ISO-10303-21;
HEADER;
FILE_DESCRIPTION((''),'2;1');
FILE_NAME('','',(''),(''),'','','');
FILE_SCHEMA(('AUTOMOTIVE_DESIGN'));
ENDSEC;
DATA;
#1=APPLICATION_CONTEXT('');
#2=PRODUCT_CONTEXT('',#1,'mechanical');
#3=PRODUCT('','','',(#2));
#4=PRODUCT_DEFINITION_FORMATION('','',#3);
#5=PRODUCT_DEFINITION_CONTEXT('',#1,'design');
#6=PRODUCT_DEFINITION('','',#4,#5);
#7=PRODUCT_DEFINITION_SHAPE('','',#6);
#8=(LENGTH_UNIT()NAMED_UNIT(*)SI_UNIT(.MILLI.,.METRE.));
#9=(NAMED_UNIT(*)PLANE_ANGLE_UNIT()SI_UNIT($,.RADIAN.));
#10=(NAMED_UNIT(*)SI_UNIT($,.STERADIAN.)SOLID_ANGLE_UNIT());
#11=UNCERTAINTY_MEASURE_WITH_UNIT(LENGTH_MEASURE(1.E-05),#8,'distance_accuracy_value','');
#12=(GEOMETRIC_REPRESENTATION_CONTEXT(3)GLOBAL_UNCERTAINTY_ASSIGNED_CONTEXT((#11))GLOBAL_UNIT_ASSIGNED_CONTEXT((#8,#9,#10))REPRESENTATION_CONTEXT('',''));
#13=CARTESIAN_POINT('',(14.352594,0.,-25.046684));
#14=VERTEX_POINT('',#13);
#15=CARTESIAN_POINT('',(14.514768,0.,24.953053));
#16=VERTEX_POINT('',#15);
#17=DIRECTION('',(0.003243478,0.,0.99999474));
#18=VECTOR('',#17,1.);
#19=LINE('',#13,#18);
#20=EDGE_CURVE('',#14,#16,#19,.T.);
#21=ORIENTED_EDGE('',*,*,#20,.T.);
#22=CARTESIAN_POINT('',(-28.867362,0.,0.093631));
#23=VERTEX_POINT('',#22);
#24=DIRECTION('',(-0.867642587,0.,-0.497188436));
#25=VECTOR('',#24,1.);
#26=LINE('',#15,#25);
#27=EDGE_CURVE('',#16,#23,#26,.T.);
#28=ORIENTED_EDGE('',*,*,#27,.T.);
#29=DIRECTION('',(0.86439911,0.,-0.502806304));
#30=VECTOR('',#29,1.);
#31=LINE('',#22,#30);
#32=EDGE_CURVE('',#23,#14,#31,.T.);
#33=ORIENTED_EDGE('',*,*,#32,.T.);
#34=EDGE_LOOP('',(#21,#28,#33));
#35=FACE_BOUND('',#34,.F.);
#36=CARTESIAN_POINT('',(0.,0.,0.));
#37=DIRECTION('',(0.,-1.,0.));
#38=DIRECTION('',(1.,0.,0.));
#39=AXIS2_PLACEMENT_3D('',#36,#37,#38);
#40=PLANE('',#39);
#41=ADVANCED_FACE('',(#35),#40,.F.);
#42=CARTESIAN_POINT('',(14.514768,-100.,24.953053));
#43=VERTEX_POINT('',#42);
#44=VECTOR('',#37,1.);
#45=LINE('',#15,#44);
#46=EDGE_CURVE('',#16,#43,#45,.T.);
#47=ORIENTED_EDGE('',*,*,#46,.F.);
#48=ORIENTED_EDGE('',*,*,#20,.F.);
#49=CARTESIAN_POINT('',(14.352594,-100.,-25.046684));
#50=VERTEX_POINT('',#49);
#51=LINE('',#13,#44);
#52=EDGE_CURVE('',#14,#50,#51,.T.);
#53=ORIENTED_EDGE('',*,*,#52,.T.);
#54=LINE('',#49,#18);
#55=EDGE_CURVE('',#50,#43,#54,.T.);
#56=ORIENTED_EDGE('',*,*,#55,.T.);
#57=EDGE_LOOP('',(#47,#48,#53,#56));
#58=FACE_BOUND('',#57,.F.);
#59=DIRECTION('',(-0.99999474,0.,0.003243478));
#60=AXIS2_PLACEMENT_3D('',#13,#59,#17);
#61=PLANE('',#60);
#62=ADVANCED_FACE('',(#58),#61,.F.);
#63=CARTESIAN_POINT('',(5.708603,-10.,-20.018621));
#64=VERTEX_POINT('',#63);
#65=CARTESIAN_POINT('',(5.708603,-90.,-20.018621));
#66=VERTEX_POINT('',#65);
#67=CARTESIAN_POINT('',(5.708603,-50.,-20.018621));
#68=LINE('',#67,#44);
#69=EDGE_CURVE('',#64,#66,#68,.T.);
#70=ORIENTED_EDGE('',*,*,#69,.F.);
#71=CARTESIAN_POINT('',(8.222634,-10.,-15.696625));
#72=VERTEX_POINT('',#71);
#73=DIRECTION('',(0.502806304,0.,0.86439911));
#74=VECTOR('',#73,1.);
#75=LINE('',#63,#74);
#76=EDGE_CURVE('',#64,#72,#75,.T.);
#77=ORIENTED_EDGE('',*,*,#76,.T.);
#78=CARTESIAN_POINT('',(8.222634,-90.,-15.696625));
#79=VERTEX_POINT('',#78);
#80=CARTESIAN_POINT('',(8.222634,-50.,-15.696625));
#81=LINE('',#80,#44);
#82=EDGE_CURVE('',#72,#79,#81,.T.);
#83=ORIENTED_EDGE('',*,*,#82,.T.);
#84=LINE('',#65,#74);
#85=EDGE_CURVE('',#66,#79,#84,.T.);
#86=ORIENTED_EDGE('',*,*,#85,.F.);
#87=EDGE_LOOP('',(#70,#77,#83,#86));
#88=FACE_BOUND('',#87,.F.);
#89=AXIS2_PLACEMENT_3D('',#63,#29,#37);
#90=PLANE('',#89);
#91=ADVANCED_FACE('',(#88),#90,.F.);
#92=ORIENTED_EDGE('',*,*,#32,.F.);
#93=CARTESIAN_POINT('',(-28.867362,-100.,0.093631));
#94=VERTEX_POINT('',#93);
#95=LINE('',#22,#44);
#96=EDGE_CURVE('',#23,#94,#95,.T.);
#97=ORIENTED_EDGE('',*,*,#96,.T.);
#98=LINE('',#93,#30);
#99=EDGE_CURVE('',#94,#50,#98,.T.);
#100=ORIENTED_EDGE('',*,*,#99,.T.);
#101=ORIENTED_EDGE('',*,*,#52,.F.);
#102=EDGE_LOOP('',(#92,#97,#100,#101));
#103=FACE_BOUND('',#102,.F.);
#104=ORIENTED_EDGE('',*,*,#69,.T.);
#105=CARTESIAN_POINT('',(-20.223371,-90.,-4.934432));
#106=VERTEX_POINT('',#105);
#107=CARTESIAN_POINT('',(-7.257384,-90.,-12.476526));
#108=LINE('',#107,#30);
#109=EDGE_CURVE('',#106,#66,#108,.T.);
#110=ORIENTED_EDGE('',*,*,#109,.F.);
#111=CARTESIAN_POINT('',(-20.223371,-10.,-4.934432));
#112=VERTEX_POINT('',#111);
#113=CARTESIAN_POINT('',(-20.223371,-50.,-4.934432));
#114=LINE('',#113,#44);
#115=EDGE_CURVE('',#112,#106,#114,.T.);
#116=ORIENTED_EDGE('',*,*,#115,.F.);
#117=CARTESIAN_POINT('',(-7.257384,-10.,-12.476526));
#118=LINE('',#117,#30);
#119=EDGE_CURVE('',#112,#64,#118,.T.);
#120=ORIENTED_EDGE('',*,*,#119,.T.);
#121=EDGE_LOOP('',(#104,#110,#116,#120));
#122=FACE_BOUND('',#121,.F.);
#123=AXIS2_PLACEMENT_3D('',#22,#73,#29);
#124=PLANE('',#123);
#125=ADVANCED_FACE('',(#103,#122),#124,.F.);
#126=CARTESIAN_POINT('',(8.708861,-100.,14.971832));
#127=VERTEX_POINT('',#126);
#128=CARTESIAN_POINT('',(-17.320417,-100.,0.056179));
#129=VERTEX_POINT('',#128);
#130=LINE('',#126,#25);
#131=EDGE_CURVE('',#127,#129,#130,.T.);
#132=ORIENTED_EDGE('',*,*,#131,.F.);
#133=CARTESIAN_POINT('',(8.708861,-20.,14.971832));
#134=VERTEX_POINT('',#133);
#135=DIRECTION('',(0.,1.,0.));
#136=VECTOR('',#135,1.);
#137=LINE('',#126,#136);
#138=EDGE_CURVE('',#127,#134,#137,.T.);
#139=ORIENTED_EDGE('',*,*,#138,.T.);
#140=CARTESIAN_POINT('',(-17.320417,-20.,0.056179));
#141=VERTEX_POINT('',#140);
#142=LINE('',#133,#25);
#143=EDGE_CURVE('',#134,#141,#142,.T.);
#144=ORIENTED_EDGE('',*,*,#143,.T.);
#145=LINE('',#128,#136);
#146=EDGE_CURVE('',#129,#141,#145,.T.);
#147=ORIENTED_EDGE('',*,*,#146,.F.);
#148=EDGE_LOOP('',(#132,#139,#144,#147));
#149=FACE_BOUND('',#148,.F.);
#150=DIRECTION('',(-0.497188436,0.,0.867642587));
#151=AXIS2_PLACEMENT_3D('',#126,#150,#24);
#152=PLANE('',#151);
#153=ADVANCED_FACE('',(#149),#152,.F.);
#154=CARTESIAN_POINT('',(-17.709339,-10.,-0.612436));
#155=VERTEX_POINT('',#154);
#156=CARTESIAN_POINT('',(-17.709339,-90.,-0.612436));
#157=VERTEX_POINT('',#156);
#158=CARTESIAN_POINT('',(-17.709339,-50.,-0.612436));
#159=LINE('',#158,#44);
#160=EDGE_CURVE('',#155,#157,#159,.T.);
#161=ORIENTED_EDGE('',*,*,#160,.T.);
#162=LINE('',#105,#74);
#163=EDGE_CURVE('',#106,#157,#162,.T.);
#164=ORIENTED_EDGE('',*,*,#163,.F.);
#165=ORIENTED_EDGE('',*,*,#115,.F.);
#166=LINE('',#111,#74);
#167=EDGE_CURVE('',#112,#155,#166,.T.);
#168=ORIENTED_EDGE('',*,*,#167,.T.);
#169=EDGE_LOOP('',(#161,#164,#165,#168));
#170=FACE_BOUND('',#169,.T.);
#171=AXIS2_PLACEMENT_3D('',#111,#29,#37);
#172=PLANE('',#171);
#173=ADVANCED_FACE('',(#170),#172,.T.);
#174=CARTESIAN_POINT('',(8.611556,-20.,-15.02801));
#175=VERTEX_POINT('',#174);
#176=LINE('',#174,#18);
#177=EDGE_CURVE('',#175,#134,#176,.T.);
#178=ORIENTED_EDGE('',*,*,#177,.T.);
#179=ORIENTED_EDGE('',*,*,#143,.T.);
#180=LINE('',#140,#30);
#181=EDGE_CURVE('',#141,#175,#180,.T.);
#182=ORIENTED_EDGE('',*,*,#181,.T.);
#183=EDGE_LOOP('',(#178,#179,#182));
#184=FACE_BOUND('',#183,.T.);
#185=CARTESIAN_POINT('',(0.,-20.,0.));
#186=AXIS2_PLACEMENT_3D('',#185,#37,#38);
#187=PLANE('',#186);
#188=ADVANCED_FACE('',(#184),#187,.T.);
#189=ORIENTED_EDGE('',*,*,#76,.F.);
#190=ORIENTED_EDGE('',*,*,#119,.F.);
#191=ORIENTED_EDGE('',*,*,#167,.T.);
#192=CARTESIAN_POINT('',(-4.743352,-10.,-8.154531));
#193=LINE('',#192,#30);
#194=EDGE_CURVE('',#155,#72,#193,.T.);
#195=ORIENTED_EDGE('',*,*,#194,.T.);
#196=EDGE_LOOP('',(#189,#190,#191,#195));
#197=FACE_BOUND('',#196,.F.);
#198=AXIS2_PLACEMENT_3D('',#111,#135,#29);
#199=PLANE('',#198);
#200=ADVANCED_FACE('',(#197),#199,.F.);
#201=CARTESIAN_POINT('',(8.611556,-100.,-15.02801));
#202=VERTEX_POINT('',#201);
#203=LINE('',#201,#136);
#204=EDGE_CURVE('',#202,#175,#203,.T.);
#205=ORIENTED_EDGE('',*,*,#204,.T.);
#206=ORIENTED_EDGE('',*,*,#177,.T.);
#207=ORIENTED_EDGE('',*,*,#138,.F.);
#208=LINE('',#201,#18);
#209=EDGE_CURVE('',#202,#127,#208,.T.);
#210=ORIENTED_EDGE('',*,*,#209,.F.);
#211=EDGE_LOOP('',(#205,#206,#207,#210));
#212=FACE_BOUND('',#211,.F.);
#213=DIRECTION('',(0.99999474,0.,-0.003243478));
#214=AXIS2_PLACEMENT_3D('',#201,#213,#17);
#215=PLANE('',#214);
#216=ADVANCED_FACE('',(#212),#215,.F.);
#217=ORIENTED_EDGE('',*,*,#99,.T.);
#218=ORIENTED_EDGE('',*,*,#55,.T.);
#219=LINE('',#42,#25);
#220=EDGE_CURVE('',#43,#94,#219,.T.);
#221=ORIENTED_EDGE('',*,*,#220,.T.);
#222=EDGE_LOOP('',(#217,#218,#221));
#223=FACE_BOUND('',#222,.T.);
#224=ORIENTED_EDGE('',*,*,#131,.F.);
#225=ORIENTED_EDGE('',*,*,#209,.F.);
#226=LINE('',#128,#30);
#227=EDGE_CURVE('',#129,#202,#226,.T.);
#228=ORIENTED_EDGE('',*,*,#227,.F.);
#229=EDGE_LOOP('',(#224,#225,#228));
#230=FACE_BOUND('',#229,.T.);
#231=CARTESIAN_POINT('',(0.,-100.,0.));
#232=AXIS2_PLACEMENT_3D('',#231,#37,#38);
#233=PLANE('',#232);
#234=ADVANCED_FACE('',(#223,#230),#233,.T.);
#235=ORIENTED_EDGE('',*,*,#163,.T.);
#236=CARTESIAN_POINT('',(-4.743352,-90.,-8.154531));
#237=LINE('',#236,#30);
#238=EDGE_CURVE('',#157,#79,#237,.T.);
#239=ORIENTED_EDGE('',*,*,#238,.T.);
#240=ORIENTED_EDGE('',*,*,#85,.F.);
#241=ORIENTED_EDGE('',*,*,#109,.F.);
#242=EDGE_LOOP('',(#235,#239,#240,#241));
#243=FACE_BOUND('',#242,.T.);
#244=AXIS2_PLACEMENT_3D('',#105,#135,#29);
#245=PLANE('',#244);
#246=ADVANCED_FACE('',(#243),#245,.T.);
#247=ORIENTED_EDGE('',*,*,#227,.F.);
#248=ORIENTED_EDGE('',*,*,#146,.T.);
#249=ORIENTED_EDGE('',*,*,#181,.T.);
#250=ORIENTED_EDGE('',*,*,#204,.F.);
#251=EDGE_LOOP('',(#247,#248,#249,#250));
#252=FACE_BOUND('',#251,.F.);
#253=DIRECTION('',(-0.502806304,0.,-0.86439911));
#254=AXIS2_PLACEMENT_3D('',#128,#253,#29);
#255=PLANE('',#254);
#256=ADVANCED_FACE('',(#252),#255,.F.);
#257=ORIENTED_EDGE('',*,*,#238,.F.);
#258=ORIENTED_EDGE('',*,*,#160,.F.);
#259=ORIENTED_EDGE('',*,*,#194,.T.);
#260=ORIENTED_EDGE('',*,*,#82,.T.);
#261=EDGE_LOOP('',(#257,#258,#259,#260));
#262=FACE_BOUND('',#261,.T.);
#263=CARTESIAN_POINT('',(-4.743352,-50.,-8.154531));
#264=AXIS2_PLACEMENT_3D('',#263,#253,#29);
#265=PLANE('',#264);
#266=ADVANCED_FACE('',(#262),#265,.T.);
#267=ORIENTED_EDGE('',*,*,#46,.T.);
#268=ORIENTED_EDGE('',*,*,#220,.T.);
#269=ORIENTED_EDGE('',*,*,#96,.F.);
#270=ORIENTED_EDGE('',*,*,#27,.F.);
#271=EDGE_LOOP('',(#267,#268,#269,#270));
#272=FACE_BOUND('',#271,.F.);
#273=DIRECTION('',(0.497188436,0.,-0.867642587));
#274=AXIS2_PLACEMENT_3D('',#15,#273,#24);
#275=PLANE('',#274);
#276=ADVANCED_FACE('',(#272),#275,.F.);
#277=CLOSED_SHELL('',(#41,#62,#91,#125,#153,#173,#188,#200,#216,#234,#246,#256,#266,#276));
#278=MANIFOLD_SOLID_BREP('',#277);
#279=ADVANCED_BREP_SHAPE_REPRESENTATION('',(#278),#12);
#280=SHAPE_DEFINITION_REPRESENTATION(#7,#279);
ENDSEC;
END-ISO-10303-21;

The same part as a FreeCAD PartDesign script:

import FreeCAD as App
import Part
import Sketcher
from FreeCAD import Vector


def add_polygon(sketch, points):
    """Adds a closed chain of lines whose ends are joined by coincident constraints."""
    first, n = sketch.GeometryCount, len(points)
    for a, b in zip(points, points[1:] + points[:1]):
        sketch.addGeometry(Part.LineSegment(App.Vector(*a, 0), App.Vector(*b, 0)), False)
    for i in range(n):
        sketch.addConstraint(Sketcher.Constraint("Coincident", first + i, 2, first + (i + 1) % n, 1))

doc = App.newDocument("Part")
body = doc.addObject("PartDesign::Body", "Body")

# Sketch on XZ plane
sketch1 = body.newObject("Sketcher::SketchObject", "Sketch")
sketch1.AttachmentSupport = (doc.getObject("XZ_Plane"), [""])
sketch1.MapMode = "FlatFace"
add_polygon(sketch1, [(14.514768, 24.953053), (-28.867362, 0.093631), (14.352594, -25.046684)])  # lines 0-2
sketch1.addConstraint([
    Sketcher.Constraint("Equal", 0, 1),
    Sketcher.Constraint("Equal", 1, 2),
    Sketcher.Constraint("Distance", 0, 50.0),
    Sketcher.Constraint("DistanceX", 0, 2, -1, 1, 28.867362),
    Sketcher.Constraint("DistanceY", -1, 1, 0, 2, 0.093631),
    Sketcher.Constraint("DistanceX", 0, 2, 2, 2, 43.382129),
])
pad1 = body.newObject("PartDesign::Pad", "Pad")
pad1.Profile = sketch1
pad1.Length = 100

# Sketch on an angled plane
sketch2 = body.newObject("Sketcher::SketchObject", "Sketch001")
sketch2.Placement = App.Placement(Vector(-7.257384, 0, -12.476526), App.Rotation(Vector(0.86439911, 0, -0.502806304), Vector(0, -1.000000001, 0), Vector(-0.502806304, 0, -0.86439911), "ZXY"))
add_polygon(sketch2, [(-15, 90), (-15, 10), (15, 10), (15, 90)])  # lines 0-3
sketch2.addConstraint([
    Sketcher.Constraint("Vertical", 0),
    Sketcher.Constraint("Horizontal", 1),
    Sketcher.Constraint("Vertical", 2),
    Sketcher.Constraint("Horizontal", 3),
    Sketcher.Constraint("DistanceX", 1, 1, 1, 2, 30.0),
    Sketcher.Constraint("DistanceY", 0, 2, 0, 1, 80.0),
    Sketcher.Constraint("DistanceX", 0, 2, -1, 1, 15.0),
    Sketcher.Constraint("DistanceY", -1, 1, 0, 2, 10.0),
])
pocket1 = body.newObject("PartDesign::Pocket", "Pocket")
pocket1.Profile = sketch2
pocket1.Length = 5

# Sketch on XZ plane
sketch3 = body.newObject("Sketcher::SketchObject", "Sketch002")
sketch3.AttachmentSupport = (doc.getObject("XZ_Plane"), [""])
sketch3.MapMode = "FlatFace"
sketch3.AttachmentOffset = App.Placement(Vector(0, 0, 100), App.Rotation())
add_polygon(sketch3, [(8.708861, 14.971832), (-17.320417, 0.056179), (8.611556, -15.02801)])  # lines 0-2
sketch3.addConstraint([
    Sketcher.Constraint("Equal", 0, 1),
    Sketcher.Constraint("Equal", 1, 2),
    Sketcher.Constraint("Distance", 0, 30.0),
    Sketcher.Constraint("DistanceY", -1, 1, 0, 2, 0.056179),
    Sketcher.Constraint("DistanceY", 1, 2, -1, 1, 15.02801),
    Sketcher.Constraint("DistanceX", -1, 1, 2, 2, 8.708861),
])
pocket2 = body.newObject("PartDesign::Pocket", "Pocket001")
pocket2.Profile = sketch3
pocket2.Length = 80

doc.recompute()
